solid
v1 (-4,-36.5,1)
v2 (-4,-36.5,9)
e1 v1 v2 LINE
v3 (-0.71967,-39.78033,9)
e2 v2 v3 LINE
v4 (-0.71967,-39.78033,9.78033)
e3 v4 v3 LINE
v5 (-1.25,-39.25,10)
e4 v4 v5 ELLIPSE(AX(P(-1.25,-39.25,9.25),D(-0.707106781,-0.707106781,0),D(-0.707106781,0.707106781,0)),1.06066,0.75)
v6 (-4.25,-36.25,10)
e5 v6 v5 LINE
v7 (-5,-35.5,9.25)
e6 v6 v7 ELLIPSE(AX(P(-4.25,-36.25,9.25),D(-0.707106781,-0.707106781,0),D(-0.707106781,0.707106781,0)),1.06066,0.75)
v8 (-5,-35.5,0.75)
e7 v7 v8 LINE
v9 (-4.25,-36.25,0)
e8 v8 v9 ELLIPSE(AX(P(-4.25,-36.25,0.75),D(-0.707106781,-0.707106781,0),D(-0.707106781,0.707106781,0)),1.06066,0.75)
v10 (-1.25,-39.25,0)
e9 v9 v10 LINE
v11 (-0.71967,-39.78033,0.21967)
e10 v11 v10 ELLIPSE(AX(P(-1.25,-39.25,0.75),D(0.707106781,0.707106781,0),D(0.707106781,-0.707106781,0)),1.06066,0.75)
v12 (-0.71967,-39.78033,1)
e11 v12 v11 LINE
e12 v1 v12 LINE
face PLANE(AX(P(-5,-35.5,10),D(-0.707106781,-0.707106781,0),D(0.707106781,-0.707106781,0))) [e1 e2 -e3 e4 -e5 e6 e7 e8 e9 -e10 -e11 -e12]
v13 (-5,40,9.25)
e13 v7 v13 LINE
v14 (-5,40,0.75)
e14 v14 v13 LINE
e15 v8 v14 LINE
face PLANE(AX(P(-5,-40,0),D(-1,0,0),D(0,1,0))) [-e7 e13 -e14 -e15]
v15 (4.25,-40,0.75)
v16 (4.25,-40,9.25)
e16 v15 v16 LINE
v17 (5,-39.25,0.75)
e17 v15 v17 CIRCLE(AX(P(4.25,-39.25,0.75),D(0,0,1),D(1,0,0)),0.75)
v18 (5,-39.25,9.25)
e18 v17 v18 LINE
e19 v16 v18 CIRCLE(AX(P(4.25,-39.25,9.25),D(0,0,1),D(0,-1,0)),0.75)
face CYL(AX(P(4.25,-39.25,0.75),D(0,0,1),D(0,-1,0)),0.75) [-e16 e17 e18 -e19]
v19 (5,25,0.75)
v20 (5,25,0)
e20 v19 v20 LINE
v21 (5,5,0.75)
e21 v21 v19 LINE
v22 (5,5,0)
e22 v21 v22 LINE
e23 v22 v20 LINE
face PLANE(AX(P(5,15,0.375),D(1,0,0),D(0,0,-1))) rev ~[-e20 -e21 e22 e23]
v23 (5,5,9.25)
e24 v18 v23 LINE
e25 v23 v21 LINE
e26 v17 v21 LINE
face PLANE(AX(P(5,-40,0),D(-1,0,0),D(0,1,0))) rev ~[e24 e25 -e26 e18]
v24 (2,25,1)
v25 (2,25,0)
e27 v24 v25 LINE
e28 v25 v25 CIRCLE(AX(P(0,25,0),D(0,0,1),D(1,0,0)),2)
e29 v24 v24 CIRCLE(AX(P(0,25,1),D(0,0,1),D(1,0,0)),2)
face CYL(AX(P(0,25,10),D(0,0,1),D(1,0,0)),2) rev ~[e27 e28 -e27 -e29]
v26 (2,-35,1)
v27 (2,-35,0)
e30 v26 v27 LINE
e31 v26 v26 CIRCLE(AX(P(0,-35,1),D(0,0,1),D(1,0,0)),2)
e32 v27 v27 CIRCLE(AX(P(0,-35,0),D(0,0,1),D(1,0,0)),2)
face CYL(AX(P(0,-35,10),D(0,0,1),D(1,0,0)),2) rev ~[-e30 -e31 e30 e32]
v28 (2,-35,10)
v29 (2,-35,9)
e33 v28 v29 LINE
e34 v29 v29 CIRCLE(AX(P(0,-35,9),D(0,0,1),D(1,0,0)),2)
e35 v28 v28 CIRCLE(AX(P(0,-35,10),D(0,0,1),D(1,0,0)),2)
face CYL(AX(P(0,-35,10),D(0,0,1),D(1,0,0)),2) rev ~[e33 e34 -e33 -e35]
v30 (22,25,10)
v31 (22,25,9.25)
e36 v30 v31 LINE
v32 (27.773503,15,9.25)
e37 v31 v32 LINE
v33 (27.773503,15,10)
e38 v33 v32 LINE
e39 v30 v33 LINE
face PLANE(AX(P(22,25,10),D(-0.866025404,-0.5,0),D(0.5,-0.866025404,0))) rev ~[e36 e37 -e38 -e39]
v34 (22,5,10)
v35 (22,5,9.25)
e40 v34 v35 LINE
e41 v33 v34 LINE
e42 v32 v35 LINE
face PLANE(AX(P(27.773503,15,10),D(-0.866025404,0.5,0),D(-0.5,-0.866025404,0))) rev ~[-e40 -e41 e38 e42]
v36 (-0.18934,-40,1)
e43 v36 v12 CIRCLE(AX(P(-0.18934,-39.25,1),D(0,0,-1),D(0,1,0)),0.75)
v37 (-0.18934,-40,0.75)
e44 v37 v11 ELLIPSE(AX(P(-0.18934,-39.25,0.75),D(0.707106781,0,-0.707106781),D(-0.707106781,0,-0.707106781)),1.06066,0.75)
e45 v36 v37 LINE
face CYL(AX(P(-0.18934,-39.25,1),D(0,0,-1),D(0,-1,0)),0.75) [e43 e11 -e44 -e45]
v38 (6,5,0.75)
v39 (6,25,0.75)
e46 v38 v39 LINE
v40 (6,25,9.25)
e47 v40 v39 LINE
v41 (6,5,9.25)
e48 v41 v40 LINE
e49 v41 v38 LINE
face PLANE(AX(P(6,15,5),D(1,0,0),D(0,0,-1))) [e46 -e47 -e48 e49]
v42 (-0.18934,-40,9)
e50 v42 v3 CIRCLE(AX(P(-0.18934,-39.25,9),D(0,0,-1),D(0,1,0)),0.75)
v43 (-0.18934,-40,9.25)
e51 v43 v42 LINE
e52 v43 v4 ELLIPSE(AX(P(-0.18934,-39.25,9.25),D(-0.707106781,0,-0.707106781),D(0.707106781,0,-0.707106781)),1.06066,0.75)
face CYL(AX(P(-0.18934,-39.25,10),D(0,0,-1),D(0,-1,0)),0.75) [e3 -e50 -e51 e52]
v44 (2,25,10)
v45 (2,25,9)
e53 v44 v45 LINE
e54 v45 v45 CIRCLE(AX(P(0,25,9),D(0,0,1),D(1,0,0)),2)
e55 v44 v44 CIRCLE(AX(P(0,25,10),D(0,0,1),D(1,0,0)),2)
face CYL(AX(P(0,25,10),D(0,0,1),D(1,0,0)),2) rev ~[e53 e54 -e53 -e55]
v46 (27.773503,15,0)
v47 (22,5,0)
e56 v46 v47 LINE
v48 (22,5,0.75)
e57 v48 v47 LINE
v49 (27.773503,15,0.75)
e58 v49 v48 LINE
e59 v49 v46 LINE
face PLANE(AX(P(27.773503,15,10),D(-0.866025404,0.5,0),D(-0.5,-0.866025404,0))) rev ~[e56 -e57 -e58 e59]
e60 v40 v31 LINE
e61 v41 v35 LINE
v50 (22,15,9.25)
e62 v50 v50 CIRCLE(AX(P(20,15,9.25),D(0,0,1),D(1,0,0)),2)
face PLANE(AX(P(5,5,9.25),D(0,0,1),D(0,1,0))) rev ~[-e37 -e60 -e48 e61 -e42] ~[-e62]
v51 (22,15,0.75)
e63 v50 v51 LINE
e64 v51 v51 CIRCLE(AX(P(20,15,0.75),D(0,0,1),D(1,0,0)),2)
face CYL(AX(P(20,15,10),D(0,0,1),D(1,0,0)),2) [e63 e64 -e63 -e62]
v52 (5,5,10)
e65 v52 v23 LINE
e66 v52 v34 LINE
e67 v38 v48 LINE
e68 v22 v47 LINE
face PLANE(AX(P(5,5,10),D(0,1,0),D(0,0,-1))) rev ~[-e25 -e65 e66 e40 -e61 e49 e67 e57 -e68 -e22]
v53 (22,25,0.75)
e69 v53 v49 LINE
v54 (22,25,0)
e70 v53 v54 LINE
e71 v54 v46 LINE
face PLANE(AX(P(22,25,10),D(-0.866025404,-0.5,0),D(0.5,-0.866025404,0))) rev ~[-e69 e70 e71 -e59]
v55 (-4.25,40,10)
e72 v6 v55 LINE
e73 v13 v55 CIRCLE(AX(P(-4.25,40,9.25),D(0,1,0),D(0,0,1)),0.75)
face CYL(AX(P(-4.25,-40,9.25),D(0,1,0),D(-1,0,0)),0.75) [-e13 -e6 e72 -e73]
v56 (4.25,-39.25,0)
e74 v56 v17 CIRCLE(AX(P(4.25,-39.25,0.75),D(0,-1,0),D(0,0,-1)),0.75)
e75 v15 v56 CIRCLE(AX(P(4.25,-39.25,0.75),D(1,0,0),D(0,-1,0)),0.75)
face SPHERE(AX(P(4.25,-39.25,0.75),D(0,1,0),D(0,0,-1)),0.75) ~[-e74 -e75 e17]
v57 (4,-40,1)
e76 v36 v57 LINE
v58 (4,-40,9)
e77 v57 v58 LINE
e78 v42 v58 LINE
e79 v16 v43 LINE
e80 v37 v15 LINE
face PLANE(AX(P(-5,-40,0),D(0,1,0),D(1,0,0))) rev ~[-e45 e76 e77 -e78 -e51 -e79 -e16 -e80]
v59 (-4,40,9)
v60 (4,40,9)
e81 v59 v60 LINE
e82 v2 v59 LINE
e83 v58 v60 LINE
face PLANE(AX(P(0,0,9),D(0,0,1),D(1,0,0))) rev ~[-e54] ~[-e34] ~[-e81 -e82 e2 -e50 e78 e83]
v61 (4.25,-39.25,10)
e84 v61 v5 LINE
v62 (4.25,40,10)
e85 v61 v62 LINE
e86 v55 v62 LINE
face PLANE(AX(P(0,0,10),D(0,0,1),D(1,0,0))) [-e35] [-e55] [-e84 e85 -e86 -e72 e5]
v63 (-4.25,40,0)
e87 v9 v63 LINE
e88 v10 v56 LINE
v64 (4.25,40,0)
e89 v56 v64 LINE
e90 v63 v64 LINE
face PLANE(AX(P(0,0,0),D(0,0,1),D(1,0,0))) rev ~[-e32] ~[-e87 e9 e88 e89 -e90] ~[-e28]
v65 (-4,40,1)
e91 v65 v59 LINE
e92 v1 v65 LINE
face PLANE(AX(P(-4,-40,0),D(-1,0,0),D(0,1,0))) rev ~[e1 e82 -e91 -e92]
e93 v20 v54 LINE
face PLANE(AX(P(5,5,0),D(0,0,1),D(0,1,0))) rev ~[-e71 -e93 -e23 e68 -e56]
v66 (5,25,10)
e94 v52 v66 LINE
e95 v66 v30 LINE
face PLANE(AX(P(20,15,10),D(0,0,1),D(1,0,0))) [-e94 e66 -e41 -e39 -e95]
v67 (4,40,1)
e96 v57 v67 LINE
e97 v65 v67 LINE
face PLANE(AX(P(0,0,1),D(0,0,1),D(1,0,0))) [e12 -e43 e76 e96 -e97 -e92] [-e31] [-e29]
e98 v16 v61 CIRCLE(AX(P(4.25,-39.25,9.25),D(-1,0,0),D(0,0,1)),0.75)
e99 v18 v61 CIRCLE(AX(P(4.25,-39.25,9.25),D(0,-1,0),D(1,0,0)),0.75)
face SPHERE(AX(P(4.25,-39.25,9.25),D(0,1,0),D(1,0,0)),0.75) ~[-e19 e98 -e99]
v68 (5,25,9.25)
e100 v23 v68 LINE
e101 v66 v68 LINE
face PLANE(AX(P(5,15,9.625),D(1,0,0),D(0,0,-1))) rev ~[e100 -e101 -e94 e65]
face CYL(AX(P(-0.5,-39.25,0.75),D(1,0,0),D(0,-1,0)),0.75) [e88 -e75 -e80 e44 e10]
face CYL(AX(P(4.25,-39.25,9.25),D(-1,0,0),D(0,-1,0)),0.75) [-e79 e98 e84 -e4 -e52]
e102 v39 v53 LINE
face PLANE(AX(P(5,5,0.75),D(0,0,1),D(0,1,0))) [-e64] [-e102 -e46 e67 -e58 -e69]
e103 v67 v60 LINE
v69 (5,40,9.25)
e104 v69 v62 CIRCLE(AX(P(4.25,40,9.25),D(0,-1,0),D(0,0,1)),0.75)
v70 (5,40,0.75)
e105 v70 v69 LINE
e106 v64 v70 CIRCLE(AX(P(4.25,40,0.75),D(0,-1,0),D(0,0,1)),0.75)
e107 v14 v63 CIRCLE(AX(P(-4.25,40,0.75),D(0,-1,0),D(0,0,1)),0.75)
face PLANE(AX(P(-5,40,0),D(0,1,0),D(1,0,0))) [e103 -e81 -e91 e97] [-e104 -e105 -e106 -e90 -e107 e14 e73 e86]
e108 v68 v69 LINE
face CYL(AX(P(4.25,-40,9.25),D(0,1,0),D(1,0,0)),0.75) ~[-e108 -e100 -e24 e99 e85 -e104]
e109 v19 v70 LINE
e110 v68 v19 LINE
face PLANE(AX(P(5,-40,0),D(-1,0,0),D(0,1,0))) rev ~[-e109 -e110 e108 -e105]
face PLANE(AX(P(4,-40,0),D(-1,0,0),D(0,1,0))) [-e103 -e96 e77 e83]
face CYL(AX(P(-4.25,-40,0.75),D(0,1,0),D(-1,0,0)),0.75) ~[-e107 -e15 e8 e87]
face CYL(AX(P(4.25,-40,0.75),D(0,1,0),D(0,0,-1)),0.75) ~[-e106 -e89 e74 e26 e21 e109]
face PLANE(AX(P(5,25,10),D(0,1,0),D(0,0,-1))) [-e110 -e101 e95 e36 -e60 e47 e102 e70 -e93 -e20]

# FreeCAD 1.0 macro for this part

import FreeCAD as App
import Part
import Sketcher
Q = App.Units.Quantity


def edges_at(feature, points):
    """Names of the edges that pass closest to the given points."""
    edges = feature.Shape.Edges
    near = lambda p: min(range(len(edges)), key=lambda i: edges[i].distToShape(Part.Vertex(*p))[0])
    return sorted({f"Edge{near(p) + 1}" for p in points})


def faces_at(feature, points):
    """Names of the faces that lie closest to the given points."""
    faces = feature.Shape.Faces
    near = lambda p: min(range(len(faces)), key=lambda i: faces[i].distToShape(Part.Vertex(*p))[0])
    return sorted({f"Face{near(p) + 1}" for p in points})

doc = App.newDocument("Part")
body = doc.addObject("PartDesign::Body", "Body")

# Sketch on XY plane
sketch1 = body.newObject("Sketcher::SketchObject", "Sketch")
sketch1.AttachmentSupport = (doc.getObject("XY_Plane"), [""])
sketch1.MapMode = "FlatFace"
sketch1.addGeometry(Part.LineSegment(App.Vector(-5, 40, 0), App.Vector(-5, -40, 0)), False)
sketch1.addGeometry(Part.LineSegment(App.Vector(-5, -40, 0), App.Vector(5, -40, 0)), False)
sketch1.addGeometry(Part.LineSegment(App.Vector(5, -40, 0), App.Vector(5, 40, 0)), False)
sketch1.addGeometry(Part.LineSegment(App.Vector(5, 40, 0), App.Vector(-5, 40, 0)), False)
sketch1.addConstraint(Sketcher.Constraint("Coincident", 0, 2, 1, 1))
sketch1.addConstraint(Sketcher.Constraint("Coincident", 1, 2, 2, 1))
sketch1.addConstraint(Sketcher.Constraint("Coincident", 2, 2, 3, 1))
sketch1.addConstraint(Sketcher.Constraint("Coincident", 3, 2, 0, 1))
sketch1.addConstraint(Sketcher.Constraint("Vertical", 0))
sketch1.addConstraint(Sketcher.Constraint("Horizontal", 1))
sketch1.addConstraint(Sketcher.Constraint("Vertical", 2))
sketch1.addConstraint(Sketcher.Constraint("Horizontal", 3))
sketch1.addConstraint(Sketcher.Constraint("Symmetric", 0, 2, 2, 2, -1, 1))
sketch1.addConstraint(Sketcher.Constraint("DistanceX", 1, 1, 1, 2, 10.0))
sketch1.addConstraint(Sketcher.Constraint("DistanceY", 0, 2, 0, 1, 80.0))
pad1 = body.newObject("PartDesign::Pad", "Pad")
pad1.Profile = sketch1
pad1.Length = 10
doc.recompute()

thickness = body.newObject("PartDesign::Thickness", "Thickness")
thickness.Base = (pad1, faces_at(pad1, [(0, -40, 5), (0, 40, 5)]))
thickness.Value = 1
thickness.Reversed = True
thickness.Join = "Intersection"
doc.recompute()

fillet = body.newObject("PartDesign::Fillet", "Fillet")
fillet.Base = (thickness, edges_at(thickness, [
    (-5, 0, 10),
    (5, 0, 10),
    (-5, 0, 0),
    (5, 0, 0),
]))
fillet.Radius = 0.75

# Sketch on YZ plane
sketch2 = body.newObject("Sketcher::SketchObject", "Sketch001")
sketch2.AttachmentSupport = (doc.getObject("YZ_Plane"), [""])
sketch2.MapMode = "FlatFace"
sketch2.AttachmentOffset = App.Placement(App.Vector(0, 0, 5), App.Rotation())
sketch2.addGeometry(Part.LineSegment(App.Vector(25, 9, 0), App.Vector(5, 9, 0)), False)
sketch2.addGeometry(Part.LineSegment(App.Vector(5, 9, 0), App.Vector(5, 1, 0)), False)
sketch2.addGeometry(Part.LineSegment(App.Vector(5, 1, 0), App.Vector(25, 1, 0)), False)
sketch2.addGeometry(Part.LineSegment(App.Vector(25, 1, 0), App.Vector(25, 9, 0)), False)
sketch2.addConstraint(Sketcher.Constraint("Coincident", 0, 2, 1, 1))
sketch2.addConstraint(Sketcher.Constraint("Coincident", 1, 2, 2, 1))
sketch2.addConstraint(Sketcher.Constraint("Coincident", 2, 2, 3, 1))
sketch2.addConstraint(Sketcher.Constraint("Coincident", 3, 2, 0, 1))
sketch2.addConstraint(Sketcher.Constraint("Horizontal", 0))
sketch2.addConstraint(Sketcher.Constraint("Vertical", 1))
sketch2.addConstraint(Sketcher.Constraint("Horizontal", 2))
sketch2.addConstraint(Sketcher.Constraint("Vertical", 3))
sketch2.addConstraint(Sketcher.Constraint("DistanceX", 0, 2, 0, 1, 20.0))
sketch2.addConstraint(Sketcher.Constraint("DistanceY", 1, 2, 1, 1, 8.5))
sketch2.addConstraint(Sketcher.Constraint("DistanceX", -1, 1, 0, 2, 5.0))
sketch2.addConstraint(Sketcher.Constraint("DistanceY", -1, 1, 0, 2, 9.25))
pad2 = body.newObject("PartDesign::Pad", "Pad001")
pad2.Profile = sketch2
pad2.Length = 1

# Sketch on YZ plane
sketch3 = body.newObject("Sketcher::SketchObject", "Sketch002")
sketch3.AttachmentSupport = (doc.getObject("YZ_Plane"), [""])
sketch3.MapMode = "FlatFace"
sketch3.AttachmentOffset = App.Placement(App.Vector(0, 0, 5), App.Rotation())
sketch3.addGeometry(Part.LineSegment(App.Vector(25, 10, 0), App.Vector(5, 10, 0)), False)
sketch3.addGeometry(Part.LineSegment(App.Vector(5, 10, 0), App.Vector(5, 9.2, 0)), False)
sketch3.addGeometry(Part.LineSegment(App.Vector(5, 9.2, 0), App.Vector(25, 9.2, 0)), False)
sketch3.addGeometry(Part.LineSegment(App.Vector(25, 9.2, 0), App.Vector(25, 10, 0)), False)
sketch3.addGeometry(Part.LineSegment(App.Vector(25, 0.8, 0), App.Vector(5, 0.8, 0)), False)
sketch3.addGeometry(Part.LineSegment(App.Vector(5, 0.8, 0), App.Vector(5, 0, 0)), False)
sketch3.addGeometry(Part.LineSegment(App.Vector(5, 0, 0), App.Vector(25, 0, 0)), False)
sketch3.addGeometry(Part.LineSegment(App.Vector(25, 0, 0), App.Vector(25, 0.8, 0)), False)
sketch3.addConstraint(Sketcher.Constraint("Coincident", 0, 2, 1, 1))
sketch3.addConstraint(Sketcher.Constraint("Coincident", 1, 2, 2, 1))
sketch3.addConstraint(Sketcher.Constraint("Coincident", 2, 2, 3, 1))
sketch3.addConstraint(Sketcher.Constraint("Coincident", 3, 2, 0, 1))
sketch3.addConstraint(Sketcher.Constraint("Coincident", 4, 2, 5, 1))
sketch3.addConstraint(Sketcher.Constraint("Coincident", 5, 2, 6, 1))
sketch3.addConstraint(Sketcher.Constraint("Coincident", 6, 2, 7, 1))
sketch3.addConstraint(Sketcher.Constraint("Coincident", 7, 2, 4, 1))
sketch3.addConstraint(Sketcher.Constraint("Horizontal", 0))
sketch3.addConstraint(Sketcher.Constraint("Vertical", 1))
sketch3.addConstraint(Sketcher.Constraint("Horizontal", 2))
sketch3.addConstraint(Sketcher.Constraint("Vertical", 3))
sketch3.addConstraint(Sketcher.Constraint("Horizontal", 4))
sketch3.addConstraint(Sketcher.Constraint("Vertical", 5))
sketch3.addConstraint(Sketcher.Constraint("Horizontal", 6))
sketch3.addConstraint(Sketcher.Constraint("Vertical", 7))
sketch3.addConstraint(Sketcher.Constraint("PointOnObject", 5, 2, -1))
sketch3.addConstraint(Sketcher.Constraint("Vertical", 1, 2, 4, 2))
sketch3.addConstraint(Sketcher.Constraint("Vertical", 3, 2, 6, 2))
sketch3.addConstraint(Sketcher.Constraint("Equal", 3, 5))
sketch3.addConstraint(Sketcher.Constraint("DistanceX", 0, 2, 0, 1, 20.0))
sketch3.addConstraint(Sketcher.Constraint("DistanceX", -1, 1, 0, 2, 5.0))
sketch3.addConstraint(Sketcher.Constraint("DistanceY", -1, 1, 0, 2, 10.0))
sketch3.addConstraint(Sketcher.Constraint("DistanceY", 1, 2, 1, 1, 0.75))
pad3 = body.newObject("PartDesign::Pad", "Pad002")
pad3.Profile = sketch3
pad3.Length = 30

# Sketch on XY plane
sketch4 = body.newObject("Sketcher::SketchObject", "Sketch003")
sketch4.AttachmentSupport = (doc.getObject("XY_Plane"), [""])
sketch4.MapMode = "FlatFace"
sketch4.AttachmentOffset = App.Placement(App.Vector(0, 0, 10), App.Rotation())
sketch4.addGeometry(Part.LineSegment(App.Vector(22, 5, 0), App.Vector(35, 5, 0)), False)
sketch4.addGeometry(Part.LineSegment(App.Vector(35, 5, 0), App.Vector(35, 25, 0)), False)
sketch4.addGeometry(Part.LineSegment(App.Vector(35, 25, 0), App.Vector(22, 25, 0)), False)
sketch4.addGeometry(Part.LineSegment(App.Vector(22, 25, 0), App.Vector(28, 15, 0)), False)
sketch4.addGeometry(Part.LineSegment(App.Vector(28, 15, 0), App.Vector(22, 5, 0)), False)
sketch4.addConstraint(Sketcher.Constraint("Coincident", 0, 2, 1, 1))
sketch4.addConstraint(Sketcher.Constraint("Coincident", 1, 2, 2, 1))
sketch4.addConstraint(Sketcher.Constraint("Coincident", 2, 2, 3, 1))
sketch4.addConstraint(Sketcher.Constraint("Coincident", 3, 2, 4, 1))
sketch4.addConstraint(Sketcher.Constraint("Coincident", 4, 2, 0, 1))
sketch4.addConstraint(Sketcher.Constraint("Horizontal", 0))
sketch4.addConstraint(Sketcher.Constraint("Vertical", 1))
sketch4.addConstraint(Sketcher.Constraint("Horizontal", 2))
sketch4.addConstraint(Sketcher.Constraint("Vertical", 2, 2, 4, 2))
sketch4.addConstraint(Sketcher.Constraint("Equal", 3, 4))
sketch4.addConstraint(Sketcher.Constraint("DistanceX", 0, 1, 0, 2, 13.0))
sketch4.addConstraint(Sketcher.Constraint("DistanceY", 1, 1, 1, 2, 20.0))
sketch4.addConstraint(Sketcher.Constraint("Angle", 3, Q("-60 deg")))
sketch4.addConstraint(Sketcher.Constraint("DistanceX", -1, 1, 0, 2, 35.0))
sketch4.addConstraint(Sketcher.Constraint("DistanceY", -1, 1, 0, 2, 5.0))
pocket1 = body.newObject("PartDesign::Pocket", "Pocket")
pocket1.Profile = sketch4
pocket1.Length = 35

# Sketch on XY plane
sketch5 = body.newObject("Sketcher::SketchObject", "Sketch004")
sketch5.AttachmentSupport = (doc.getObject("XY_Plane"), [""])
sketch5.MapMode = "FlatFace"
sketch5.AttachmentOffset = App.Placement(App.Vector(0, 0, 10), App.Rotation())
sketch5.addGeometry(Part.Circle(App.Vector(0, 25, 0), App.Vector(0, 0, 1), 2), False)
sketch5.addGeometry(Part.Circle(App.Vector(0, -35, 0), App.Vector(0, 0, 1), 2), False)
sketch5.addGeometry(Part.LineSegment(App.Vector(-0.5, -40, 0), App.Vector(-5, -35.5, 0)), False)
sketch5.addGeometry(Part.LineSegment(App.Vector(-5, -35.5, 0), App.Vector(-5, -40, 0)), False)
sketch5.addGeometry(Part.LineSegment(App.Vector(-5, -40, 0), App.Vector(-0.5, -40, 0)), False)
sketch5.addConstraint(Sketcher.Constraint("Coincident", 2, 2, 3, 1))
sketch5.addConstraint(Sketcher.Constraint("Coincident", 3, 2, 4, 1))
sketch5.addConstraint(Sketcher.Constraint("Coincident", 4, 2, 2, 1))
sketch5.addConstraint(Sketcher.Constraint("Vertical", 3))
sketch5.addConstraint(Sketcher.Constraint("Horizontal", 4))
sketch5.addConstraint(Sketcher.Constraint("Equal", 0, 1))
sketch5.addConstraint(Sketcher.Constraint("PointOnObject", 0, 3, -2))
sketch5.addConstraint(Sketcher.Constraint("PointOnObject", 1, 3, -2))
sketch5.addConstraint(Sketcher.Constraint("Equal", 4, 3))
sketch5.addConstraint(Sketcher.Constraint("Diameter", 0, 4.0))
sketch5.addConstraint(Sketcher.Constraint("DistanceX", 4, 1, 4, 2, 4.5))
sketch5.addConstraint(Sketcher.Constraint("DistanceY", -1, 1, 0, 3, 25.0))
sketch5.addConstraint(Sketcher.Constraint("DistanceY", 1, 3, -1, 1, 35.0))
sketch5.addConstraint(Sketcher.Constraint("DistanceX", 2, 2, -1, 1, 5.0))
sketch5.addConstraint(Sketcher.Constraint("DistanceY", 3, 2, -1, 1, 40.0))
pocket2 = body.newObject("PartDesign::Pocket", "Pocket001")
pocket2.Profile = sketch5
pocket2.Length = 35
doc.recompute()

fillet2 = body.newObject("PartDesign::Fillet", "Fillet001")
fillet2.Base = (pocket2, edges_at(pocket2, [
    (1.875, -40, 0),
    (1.875, -40, 10),
    (-0.5, -40, 9.5),
    (-0.5, -40, 0.5),
    (5, -40, 5),
    (4.78, -40, 0.22),
    (4.78, -40, 9.78),
]))
fillet2.Radius = 0.75

# Sketch on XY plane
sketch6 = body.newObject("Sketcher::SketchObject", "Sketch005")
sketch6.AttachmentSupport = (doc.getObject("XY_Plane"), [""])
sketch6.MapMode = "FlatFace"
sketch6.AttachmentOffset = App.Placement(App.Vector(0, 0, 10), App.Rotation())
sketch6.addGeometry(Part.Circle(App.Vector(20, 15, 0), App.Vector(0, 0, 1), 2), False)
sketch6.addConstraint(Sketcher.Constraint("Diameter", 0, 4.0))
sketch6.addConstraint(Sketcher.Constraint("DistanceX", -1, 1, 0, 3, 20.0))
sketch6.addConstraint(Sketcher.Constraint("DistanceY", -1, 1, 0, 3, 15.0))
pad4 = body.newObject("PartDesign::Pad", "Pad003")
pad4.Profile = sketch6
pad4.Length = 10
pad4.Reversed = True

doc.recompute()
